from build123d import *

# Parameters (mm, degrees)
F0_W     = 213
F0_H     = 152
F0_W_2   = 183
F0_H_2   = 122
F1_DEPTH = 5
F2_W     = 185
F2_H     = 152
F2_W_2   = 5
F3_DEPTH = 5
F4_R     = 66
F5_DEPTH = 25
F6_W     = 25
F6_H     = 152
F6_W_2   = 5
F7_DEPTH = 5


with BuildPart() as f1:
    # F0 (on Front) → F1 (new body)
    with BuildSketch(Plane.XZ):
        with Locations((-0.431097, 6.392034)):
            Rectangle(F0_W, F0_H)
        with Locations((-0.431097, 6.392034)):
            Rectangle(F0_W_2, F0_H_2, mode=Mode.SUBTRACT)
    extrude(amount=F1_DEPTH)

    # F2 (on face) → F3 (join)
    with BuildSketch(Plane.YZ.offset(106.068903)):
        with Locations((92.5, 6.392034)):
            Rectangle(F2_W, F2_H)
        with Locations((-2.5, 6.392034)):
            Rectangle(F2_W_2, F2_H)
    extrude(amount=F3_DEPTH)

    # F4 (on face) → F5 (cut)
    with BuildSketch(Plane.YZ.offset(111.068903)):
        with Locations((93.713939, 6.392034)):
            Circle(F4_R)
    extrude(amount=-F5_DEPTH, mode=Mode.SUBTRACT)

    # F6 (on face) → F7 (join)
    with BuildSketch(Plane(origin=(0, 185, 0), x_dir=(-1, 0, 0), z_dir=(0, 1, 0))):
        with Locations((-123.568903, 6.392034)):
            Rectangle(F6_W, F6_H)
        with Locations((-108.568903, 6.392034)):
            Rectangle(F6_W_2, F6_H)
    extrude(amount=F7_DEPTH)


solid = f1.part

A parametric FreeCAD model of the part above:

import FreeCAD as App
import Part
import Sketcher
from FreeCAD import Vector


def add_polygon(sketch, points):
    """Adds a closed chain of lines whose ends are joined by coincident constraints."""
    first, n = sketch.GeometryCount, len(points)
    for a, b in zip(points, points[1:] + points[:1]):
        sketch.addGeometry(Part.LineSegment(App.Vector(*a, 0), App.Vector(*b, 0)), False)
    for i in range(n):
        sketch.addConstraint(Sketcher.Constraint("Coincident", first + i, 2, first + (i + 1) % n, 1))

doc = App.newDocument("Part")
body = doc.addObject("PartDesign::Body", "Body")

sketch1 = body.newObject("Sketcher::SketchObject", "Sketch")
sketch1.AttachmentSupport = (doc.getObject("XZ_Plane"), [""])
sketch1.MapMode = "FlatFace"
add_polygon(sketch1, [(-107, 82), (-107, -70), (106, -70), (106, 82)])
add_polygon(sketch1, [(91, -55), (-92, -55), (-92, 67), (91, 67)])
sketch1.addConstraint(Sketcher.Constraint("Vertical", 0))
sketch1.addConstraint(Sketcher.Constraint("Horizontal", 1))
sketch1.addConstraint(Sketcher.Constraint("Vertical", 2))
sketch1.addConstraint(Sketcher.Constraint("Horizontal", 3))
sketch1.addConstraint(Sketcher.Constraint("Horizontal", 4))
sketch1.addConstraint(Sketcher.Constraint("Vertical", 5))
sketch1.addConstraint(Sketcher.Constraint("Horizontal", 6))
sketch1.addConstraint(Sketcher.Constraint("Vertical", 7))
sketch1.addConstraint(Sketcher.Constraint("DistanceX", 1, 1, 1, 2, 213.0))
sketch1.addConstraint(Sketcher.Constraint("DistanceX", 4, 2, 4, 1, 183.0))
sketch1.addConstraint(Sketcher.Constraint("DistanceY", 0, 2, 0, 1, 152.0))
sketch1.addConstraint(Sketcher.Constraint("DistanceY", 5, 1, 5, 2, 122.0))
sketch1.addConstraint(Sketcher.Constraint("DistanceX", 0, 2, 4, 2, 15.0))
sketch1.addConstraint(Sketcher.Constraint("DistanceY", 0, 2, 4, 2, 15.0))
sketch1.addConstraint(Sketcher.Constraint("DistanceX", 0, 2, -1, 1, 106.931097))
sketch1.addConstraint(Sketcher.Constraint("DistanceY", 0, 2, -1, 1, 69.607966))
pad1 = body.newObject("PartDesign::Pad", "Pad")
pad1.Profile = sketch1
pad1.Length = 5

sketch2 = body.newObject("Sketcher::SketchObject", "Sketch001")
sketch2.AttachmentSupport = (doc.getObject("YZ_Plane"), [""])
sketch2.MapMode = "FlatFace"
sketch2.AttachmentOffset = App.Placement(Vector(0, 0, 106.068903), App.Rotation())
add_polygon(sketch2, [(185, -70), (185, 82), (-5, 82), (-5, -70)])
sketch2.addConstraint(Sketcher.Constraint("Vertical", 0))
sketch2.addConstraint(Sketcher.Constraint("Horizontal", 1))
sketch2.addConstraint(Sketcher.Constraint("Vertical", 2))
sketch2.addConstraint(Sketcher.Constraint("Horizontal", 3))
sketch2.addConstraint(Sketcher.Constraint("DistanceX", 1, 2, 1, 1, 190.0))
sketch2.addConstraint(Sketcher.Constraint("DistanceY", 0, 1, 0, 2, 152.0))
sketch2.addConstraint(Sketcher.Constraint("DistanceX", -1, 1, 0, 2, 185.0))
sketch2.addConstraint(Sketcher.Constraint("DistanceY", -1, 1, 0, 2, 82.392034))
pad2 = body.newObject("PartDesign::Pad", "Pad001")
pad2.Profile = sketch2
pad2.Length = 5

sketch3 = body.newObject("Sketcher::SketchObject", "Sketch002")
sketch3.AttachmentSupport = (doc.getObject("YZ_Plane"), [""])
sketch3.MapMode = "FlatFace"
sketch3.AttachmentOffset = App.Placement(Vector(0, 0, 111.068903), App.Rotation())
sketch3.addGeometry(Part.Circle(Vector(94, 6, 0), Vector(0, 0, 1), 66), False)
sketch3.addConstraint(Sketcher.Constraint("Diameter", 0, 132.0))
sketch3.addConstraint(Sketcher.Constraint("DistanceX", -1, 1, 0, 3, 93.713939))
sketch3.addConstraint(Sketcher.Constraint("DistanceY", -1, 1, 0, 3, 6.392034))
pocket1 = body.newObject("PartDesign::Pocket", "Pocket")
pocket1.Profile = sketch3
pocket1.Length = 25

sketch4 = body.newObject("Sketcher::SketchObject", "Sketch003")
sketch4.AttachmentSupport = (doc.getObject("XZ_Plane"), [""])
sketch4.MapMode = "FlatFace"
sketch4.AttachmentOffset = App.Placement(Vector(0, 0, -185), App.Rotation())
add_polygon(sketch4, [(136, 82), (136, -70), (106, -70), (106, 82)])
sketch4.addConstraint(Sketcher.Constraint("Vertical", 0))
sketch4.addConstraint(Sketcher.Constraint("Horizontal", 1))
sketch4.addConstraint(Sketcher.Constraint("Vertical", 2))
sketch4.addConstraint(Sketcher.Constraint("Horizontal", 3))
sketch4.addConstraint(Sketcher.Constraint("DistanceX", 1, 2, 1, 1, 30.0))
sketch4.addConstraint(Sketcher.Constraint("DistanceY", 0, 2, 0, 1, 152.0))
sketch4.addConstraint(Sketcher.Constraint("DistanceX", -1, 1, 0, 2, 136.068903))
sketch4.addConstraint(Sketcher.Constraint("DistanceY", 0, 2, -1, 1, 69.607966))
pad3 = body.newObject("PartDesign::Pad", "Pad002")
pad3.Profile = sketch4
pad3.Length = 5
pad3.Reversed = True

doc.recompute()
